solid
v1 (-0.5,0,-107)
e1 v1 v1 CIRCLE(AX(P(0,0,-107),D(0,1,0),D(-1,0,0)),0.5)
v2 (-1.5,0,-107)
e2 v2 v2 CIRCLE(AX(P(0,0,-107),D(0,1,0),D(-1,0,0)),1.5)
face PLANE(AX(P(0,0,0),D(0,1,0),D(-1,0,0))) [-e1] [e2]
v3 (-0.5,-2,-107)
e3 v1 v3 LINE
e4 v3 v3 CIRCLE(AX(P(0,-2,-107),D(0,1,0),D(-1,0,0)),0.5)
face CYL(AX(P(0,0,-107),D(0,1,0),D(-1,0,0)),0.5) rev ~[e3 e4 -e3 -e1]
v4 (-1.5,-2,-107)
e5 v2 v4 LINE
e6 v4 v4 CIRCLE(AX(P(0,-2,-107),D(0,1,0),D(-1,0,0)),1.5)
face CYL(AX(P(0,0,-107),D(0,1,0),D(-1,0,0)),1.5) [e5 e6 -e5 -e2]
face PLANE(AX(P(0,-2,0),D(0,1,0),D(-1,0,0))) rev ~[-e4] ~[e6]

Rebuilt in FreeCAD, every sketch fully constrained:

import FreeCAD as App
import Part
import Sketcher

doc = App.newDocument("Part")
body = doc.addObject("PartDesign::Body", "Body")

sketch1 = body.newObject("Sketcher::SketchObject", "Sketch")
sketch1.AttachmentSupport = (doc.getObject("XZ_Plane"), [""])
sketch1.MapMode = "FlatFace"
sketch1.addGeometry([
    Part.Circle(App.Vector(0, -107, 0), App.Vector(0, 0, 1), 1.5),
    Part.Circle(App.Vector(0, -107, 0), App.Vector(0, 0, 1), 0.5),
], False)
sketch1.addConstraint([
    Sketcher.Constraint("Coincident", 1, 3, 0, 3),
    Sketcher.Constraint("PointOnObject", 0, 3, -2),
    Sketcher.Constraint("Diameter", 0, 3.0),
    Sketcher.Constraint("Diameter", 1, 1.0),
    Sketcher.Constraint("DistanceY", 0, 3, -1, 1, 107.0),
])
pad1 = body.newObject("PartDesign::Pad", "Pad")
pad1.Profile = sketch1
pad1.Length = 2

doc.recompute()
